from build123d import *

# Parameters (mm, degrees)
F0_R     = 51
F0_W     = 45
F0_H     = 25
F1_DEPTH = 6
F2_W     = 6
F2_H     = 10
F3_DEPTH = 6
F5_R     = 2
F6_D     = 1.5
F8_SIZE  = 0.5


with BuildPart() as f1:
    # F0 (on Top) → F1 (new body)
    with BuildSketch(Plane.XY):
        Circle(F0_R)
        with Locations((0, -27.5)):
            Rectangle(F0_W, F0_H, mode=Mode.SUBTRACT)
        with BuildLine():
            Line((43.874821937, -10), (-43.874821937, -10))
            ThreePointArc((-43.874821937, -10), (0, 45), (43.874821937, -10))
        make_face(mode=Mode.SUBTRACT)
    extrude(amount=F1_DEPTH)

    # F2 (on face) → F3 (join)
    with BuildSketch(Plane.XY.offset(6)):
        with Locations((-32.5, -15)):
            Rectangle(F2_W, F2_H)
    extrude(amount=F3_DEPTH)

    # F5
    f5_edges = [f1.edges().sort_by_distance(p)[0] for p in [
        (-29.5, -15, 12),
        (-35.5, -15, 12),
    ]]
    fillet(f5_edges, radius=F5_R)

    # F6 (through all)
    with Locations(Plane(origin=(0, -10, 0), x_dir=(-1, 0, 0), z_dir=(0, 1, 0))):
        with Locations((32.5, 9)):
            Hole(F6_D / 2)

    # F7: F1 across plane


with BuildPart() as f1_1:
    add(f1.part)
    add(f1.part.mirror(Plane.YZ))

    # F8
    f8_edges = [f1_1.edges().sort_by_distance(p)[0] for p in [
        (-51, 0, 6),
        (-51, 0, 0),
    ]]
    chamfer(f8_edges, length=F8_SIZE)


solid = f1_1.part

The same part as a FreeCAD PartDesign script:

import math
import FreeCAD as App
import Part
import Sketcher
from FreeCAD import Vector
Q = App.Units.Quantity


def edges_at(feature, points):
    """Names of the edges that pass closest to the given points."""
    edges = feature.Shape.Edges
    near = lambda p: min(range(len(edges)), key=lambda i: edges[i].distToShape(Part.Vertex(*p))[0])
    return sorted({f"Edge{near(p) + 1}" for p in points})

doc = App.newDocument("Part")
body = doc.addObject("PartDesign::Body", "Body")

# Sketch on XY plane
sketch1 = doc.addObject("Sketcher::SketchObject", "Sketch")
body.addObject(sketch1)
sketch1.AttachmentSupport = (doc.XY_Plane, [""])
sketch1.MapMode = "FlatFace"
sketch1.addGeometry([
    Part.Circle(Vector(0, 0, 0), Vector(0, 0, 1), 51),  # 0
    Part.LineSegment(Vector(22, -40, 0), Vector(-22, -40, 0)),  # 1
    Part.LineSegment(Vector(-22, -40, 0), Vector(-22, -15, 0)),  # 2
    Part.LineSegment(Vector(-22, -15, 0), Vector(22, -15, 0)),  # 3
    Part.LineSegment(Vector(22, -15, 0), Vector(22, -40, 0)),  # 4
    Part.ArcOfCircle(Part.Circle(Vector(0, 0, 0), Vector(0, 0, 1), 45), math.radians(-13), math.radians(193)),  # 5
    Part.LineSegment(Vector(44, -10, 0), Vector(-44, -10, 0)),  # 6
], False)
sketch1.addConstraint([
    Sketcher.Constraint("Coincident", 1, 2, 2, 1),
    Sketcher.Constraint("Coincident", 2, 2, 3, 1),
    Sketcher.Constraint("Coincident", 3, 2, 4, 1),
    Sketcher.Constraint("Coincident", 4, 2, 1, 1),
    Sketcher.Constraint("Coincident", 5, 1, 6, 1),
    Sketcher.Constraint("Coincident", 6, 2, 5, 2),
    Sketcher.Constraint("Horizontal", 1),
    Sketcher.Constraint("Vertical", 2),
    Sketcher.Constraint("Horizontal", 3),
    Sketcher.Constraint("Vertical", 4),
    Sketcher.Constraint("Horizontal", 6),
    Sketcher.Constraint("Coincident", 0, 3, -1, 1),
    Sketcher.Constraint("Coincident", 5, 3, -1, 1),
    Sketcher.Constraint("Diameter", 0, Q("102 mm")),
    Sketcher.Constraint("Radius", 5, Q("45 mm")),
    Sketcher.Constraint("DistanceX", 1, 2, 1, 1, Q("45 mm")),
    Sketcher.Constraint("DistanceY", 2, 1, 2, 2, Q("25 mm")),
    Sketcher.Constraint("DistanceY", 1, 2, -1, 1, Q("40 mm")),
    Sketcher.Constraint("DistanceY", 5, 1, -1, 1, Q("10 mm")),
    Sketcher.Constraint("DistanceX", 1, 2, -1, 1, Q("22.5 mm")),
])
pad1 = doc.addObject("PartDesign::Pad", "Pad")
body.addObject(pad1)
pad1.Profile = sketch1
pad1.Length = 6

# Sketch on XY plane
sketch2 = doc.addObject("Sketcher::SketchObject", "Sketch001")
body.addObject(sketch2)
sketch2.AttachmentSupport = (doc.XY_Plane, [""])
sketch2.MapMode = "FlatFace"
sketch2.AttachmentOffset = App.Placement(Vector(0, 0, 6), App.Rotation())
sketch2.addGeometry([
    Part.LineSegment(Vector(-36, -10, 0), Vector(-36, -20, 0)),
    Part.LineSegment(Vector(-36, -20, 0), Vector(-30, -20, 0)),
    Part.LineSegment(Vector(-30, -20, 0), Vector(-30, -10, 0)),
    Part.LineSegment(Vector(-30, -10, 0), Vector(-36, -10, 0)),
], False)
sketch2.addConstraint([
    Sketcher.Constraint("Coincident", 0, 2, 1, 1),
    Sketcher.Constraint("Coincident", 1, 2, 2, 1),
    Sketcher.Constraint("Coincident", 2, 2, 3, 1),
    Sketcher.Constraint("Coincident", 3, 2, 0, 1),
    Sketcher.Constraint("Vertical", 0),
    Sketcher.Constraint("Horizontal", 1),
    Sketcher.Constraint("Vertical", 2),
    Sketcher.Constraint("Horizontal", 3),
    Sketcher.Constraint("DistanceX", 1, 1, 1, 2, Q("6 mm")),
    Sketcher.Constraint("DistanceY", 0, 2, 0, 1, Q("10 mm")),
    Sketcher.Constraint("DistanceY", 0, 2, -1, 1, Q("20 mm")),
    Sketcher.Constraint("DistanceX", 0, 2, -1, 1, Q("35.5 mm")),
])
pad2 = doc.addObject("PartDesign::Pad", "Pad001")
body.addObject(pad2)
pad2.Profile = sketch2
pad2.Length = 6
doc.recompute()

fillet = doc.addObject("PartDesign::Fillet", "Fillet")
body.addObject(fillet)
fillet.Base = (pad2, edges_at(pad2, [(-29.5, -15, 12), (-35.5, -15, 12)]))
fillet.Radius = 2

# Sketch on XZ plane
sketch3 = doc.addObject("Sketcher::SketchObject", "Sketch002")
body.addObject(sketch3)
sketch3.AttachmentSupport = (doc.XZ_Plane, [""])
sketch3.MapMode = "FlatFace"
sketch3.AttachmentOffset = App.Placement(Vector(0, 0, 10), App.Rotation())
sketch3.addGeometry(Part.Circle(Vector(-32.5, 9, 0), Vector(0, 0, 1), 0.8), False)
sketch3.addConstraint([
    Sketcher.Constraint("Diameter", 0, Q("1.5 mm")),
    Sketcher.Constraint("DistanceY", -1, 1, 0, 3, Q("9 mm")),
    Sketcher.Constraint("DistanceX", 0, 3, -1, 1, Q("32.5 mm")),
])
doc.recompute()
hole = doc.addObject("PartDesign::Hole", "Hole")
body.addObject(hole)
hole.Profile = sketch3
hole.ThreadType = "None"
hole.Diameter = 1.5
hole.DepthType = "ThroughAll"
hole.Reversed = True
body2 = doc.addObject("PartDesign::Body", "Body001")
doc.recompute()

body2.BaseFeature = body
doc.recompute()

mirroring = doc.addObject("Part::Mirroring", "Mirroring")
mirroring.Source = body
mirroring.Base = Vector(0, 0, 0)
mirroring.Normal = Vector(1, 0, 0)
body3 = doc.addObject("PartDesign::Body", "Body002")
body3.BaseFeature = mirroring
boolean = doc.addObject("PartDesign::Boolean", "Boolean")
body2.addObject(boolean)
boolean.Type = "Fuse"
boolean.addObjects([body3])
doc.recompute()

chamfer = doc.addObject("PartDesign::Chamfer", "Chamfer")
body2.addObject(chamfer)
chamfer.Base = (boolean, edges_at(boolean, [(-51, 0, 6), (-51, 0, 0)]))
chamfer.Size = 0.5
mirroring.Visibility = False

doc.recompute()
